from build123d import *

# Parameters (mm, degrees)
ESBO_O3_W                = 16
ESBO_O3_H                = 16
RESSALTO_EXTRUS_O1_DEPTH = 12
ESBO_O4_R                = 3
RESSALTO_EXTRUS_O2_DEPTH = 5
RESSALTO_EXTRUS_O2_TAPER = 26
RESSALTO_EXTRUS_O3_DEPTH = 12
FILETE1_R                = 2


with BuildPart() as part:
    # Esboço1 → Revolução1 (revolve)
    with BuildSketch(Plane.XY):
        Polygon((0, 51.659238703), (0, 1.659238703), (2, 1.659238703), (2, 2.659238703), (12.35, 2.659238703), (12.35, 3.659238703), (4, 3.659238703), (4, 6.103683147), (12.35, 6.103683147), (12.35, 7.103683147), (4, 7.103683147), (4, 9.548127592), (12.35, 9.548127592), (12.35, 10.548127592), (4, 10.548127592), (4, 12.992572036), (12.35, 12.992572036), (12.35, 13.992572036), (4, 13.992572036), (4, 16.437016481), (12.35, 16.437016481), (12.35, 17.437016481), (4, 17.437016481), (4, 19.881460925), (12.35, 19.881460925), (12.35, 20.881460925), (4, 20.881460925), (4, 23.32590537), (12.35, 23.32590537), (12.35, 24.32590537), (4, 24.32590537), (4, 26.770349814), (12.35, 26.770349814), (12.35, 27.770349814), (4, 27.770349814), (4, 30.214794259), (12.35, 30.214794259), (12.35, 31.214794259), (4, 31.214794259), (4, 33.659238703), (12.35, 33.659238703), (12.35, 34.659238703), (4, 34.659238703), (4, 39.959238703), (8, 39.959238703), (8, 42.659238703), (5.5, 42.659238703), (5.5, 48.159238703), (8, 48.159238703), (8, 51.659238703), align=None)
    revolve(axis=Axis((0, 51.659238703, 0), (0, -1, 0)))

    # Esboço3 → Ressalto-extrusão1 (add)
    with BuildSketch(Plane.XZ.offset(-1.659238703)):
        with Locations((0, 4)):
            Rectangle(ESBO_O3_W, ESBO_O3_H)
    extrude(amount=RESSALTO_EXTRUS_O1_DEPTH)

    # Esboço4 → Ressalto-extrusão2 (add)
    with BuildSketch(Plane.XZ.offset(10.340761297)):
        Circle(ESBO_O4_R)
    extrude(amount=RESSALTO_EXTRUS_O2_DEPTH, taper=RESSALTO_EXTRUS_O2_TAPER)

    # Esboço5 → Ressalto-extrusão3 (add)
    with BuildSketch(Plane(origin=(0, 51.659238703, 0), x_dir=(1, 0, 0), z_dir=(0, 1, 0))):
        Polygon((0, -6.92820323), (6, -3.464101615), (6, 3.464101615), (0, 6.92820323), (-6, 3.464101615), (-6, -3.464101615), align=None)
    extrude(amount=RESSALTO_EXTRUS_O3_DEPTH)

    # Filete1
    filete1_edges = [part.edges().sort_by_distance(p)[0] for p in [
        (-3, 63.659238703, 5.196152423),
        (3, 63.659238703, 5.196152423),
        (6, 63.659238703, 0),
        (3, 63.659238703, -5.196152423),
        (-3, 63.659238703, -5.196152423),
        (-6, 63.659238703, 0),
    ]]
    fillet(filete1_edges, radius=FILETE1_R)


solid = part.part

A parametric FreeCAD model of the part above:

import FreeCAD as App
import Part
import Sketcher
Q = App.Units.Quantity


def edges_at(feature, points):
    """Names of the edges that pass closest to the given points."""
    edges = feature.Shape.Edges
    near = lambda p: min(range(len(edges)), key=lambda i: edges[i].distToShape(Part.Vertex(*p))[0])
    return sorted({f"Edge{near(p) + 1}" for p in points})


def add_polygon(sketch, points):
    """Adds a closed chain of lines whose ends are joined by coincident constraints."""
    first, n = sketch.GeometryCount, len(points)
    for a, b in zip(points, points[1:] + points[:1]):
        sketch.addGeometry(Part.LineSegment(App.Vector(*a, 0), App.Vector(*b, 0)), False)
    for i in range(n):
        sketch.addConstraint(Sketcher.Constraint("Coincident", first + i, 2, first + (i + 1) % n, 1))

doc = App.newDocument("Part")
params = doc.addObject("Spreadsheet::Sheet", "Params")
for row, (alias, value) in enumerate([
    ("sketch1_width", "2 mm"),
    ("sketch1_width2", "4 mm"),
    ("sketch1_width3", "8 mm"),
    ("sketch1_height", "50 mm"),
    ("sketch1_height2", "1 mm"),
    ("revolution_angle", "360 deg"),
    ("sketch2_width", "16 mm"),
    ("pad1_length", "12 mm"),
    ("sketch3_diameter", "6 mm"),
    ("pad2_length", "5 mm"),
    ("pad2_taper", "-26 deg"),
    ("pad3_length", "12 mm"),
    ("fillet_radius", "2 mm"),
], start=1):
    params.set(f"A{row}", alias)
    params.set(f"B{row}", "=" + value)
    params.setAlias(f"B{row}", alias)

body = doc.addObject("PartDesign::Body", "Body")

# Sketch on XY plane
sketch1 = doc.addObject("Sketcher::SketchObject", "Sketch")
body.addObject(sketch1)
sketch1.AttachmentSupport = (doc.XY_Plane, [""])
sketch1.MapMode = "FlatFace"
add_polygon(sketch1, [(0, 51.7), (0, 1.7), (2, 1.7), (2, 2.7), (12.3, 2.7), (12.3, 3.7), (4, 3.7), (4, 6.1), (12.3, 6.1), (12.3, 7.1), (4, 7.1), (4, 9.5), (12.3, 9.5), (12.3, 10.5), (4, 10.5), (4, 13), (12.3, 13), (12.3, 14), (4, 14), (4, 16.4), (12.3, 16.4), (12.3, 17.4), (4, 17.4), (4, 19.9), (12.3, 19.9), (12.3, 20.9), (4, 20.9), (4, 23.3), (12.3, 23.3), (12.3, 24.3), (4, 24.3), (4, 26.8), (12.3, 26.8), (12.3, 27.8), (4, 27.8), (4, 30.2), (12.3, 30.2), (12.3, 31.2), (4, 31.2), (4, 33.7), (12.3, 33.7), (12.3, 34.7), (4, 34.7), (4, 40), (8, 40), (8, 42.7), (5.5, 42.7), (5.5, 48.2), (8, 48.2), (8, 51.7)])  # lines 0-49
sketch1.addConstraint(Sketcher.Constraint("Vertical", 0))
sketch1.addConstraint(Sketcher.Constraint("Horizontal", 1))
sketch1.addConstraint(Sketcher.Constraint("Vertical", 2))
sketch1.addConstraint(Sketcher.Constraint("Horizontal", 3))
sketch1.addConstraint(Sketcher.Constraint("Vertical", 4))
sketch1.addConstraint(Sketcher.Constraint("Horizontal", 5))
sketch1.addConstraint(Sketcher.Constraint("Vertical", 6))
sketch1.addConstraint(Sketcher.Constraint("Horizontal", 7))
sketch1.addConstraint(Sketcher.Constraint("Vertical", 8))
sketch1.addConstraint(Sketcher.Constraint("Horizontal", 9))
sketch1.addConstraint(Sketcher.Constraint("Vertical", 10))
sketch1.addConstraint(Sketcher.Constraint("Horizontal", 11))
sketch1.addConstraint(Sketcher.Constraint("Vertical", 12))
sketch1.addConstraint(Sketcher.Constraint("Horizontal", 13))
sketch1.addConstraint(Sketcher.Constraint("Vertical", 14))
sketch1.addConstraint(Sketcher.Constraint("Horizontal", 15))
sketch1.addConstraint(Sketcher.Constraint("Vertical", 16))
sketch1.addConstraint(Sketcher.Constraint("Horizontal", 17))
sketch1.addConstraint(Sketcher.Constraint("Vertical", 18))
sketch1.addConstraint(Sketcher.Constraint("Horizontal", 19))
sketch1.addConstraint(Sketcher.Constraint("Vertical", 20))
sketch1.addConstraint(Sketcher.Constraint("Horizontal", 21))
sketch1.addConstraint(Sketcher.Constraint("Vertical", 22))
sketch1.addConstraint(Sketcher.Constraint("Horizontal", 23))
sketch1.addConstraint(Sketcher.Constraint("Vertical", 24))
sketch1.addConstraint(Sketcher.Constraint("Horizontal", 25))
sketch1.addConstraint(Sketcher.Constraint("Vertical", 26))
sketch1.addConstraint(Sketcher.Constraint("Horizontal", 27))
sketch1.addConstraint(Sketcher.Constraint("Vertical", 28))
sketch1.addConstraint(Sketcher.Constraint("Horizontal", 29))
sketch1.addConstraint(Sketcher.Constraint("Vertical", 30))
sketch1.addConstraint(Sketcher.Constraint("Horizontal", 31))
sketch1.addConstraint(Sketcher.Constraint("Vertical", 32))
sketch1.addConstraint(Sketcher.Constraint("Horizontal", 33))
sketch1.addConstraint(Sketcher.Constraint("Vertical", 34))
sketch1.addConstraint(Sketcher.Constraint("Horizontal", 35))
sketch1.addConstraint(Sketcher.Constraint("Vertical", 36))
sketch1.addConstraint(Sketcher.Constraint("Horizontal", 37))
sketch1.addConstraint(Sketcher.Constraint("Vertical", 38))
sketch1.addConstraint(Sketcher.Constraint("Horizontal", 39))
sketch1.addConstraint(Sketcher.Constraint("Vertical", 40))
sketch1.addConstraint(Sketcher.Constraint("Horizontal", 41))
sketch1.addConstraint(Sketcher.Constraint("Vertical", 42))
sketch1.addConstraint(Sketcher.Constraint("Horizontal", 43))
sketch1.addConstraint(Sketcher.Constraint("Vertical", 44))
sketch1.addConstraint(Sketcher.Constraint("Horizontal", 45))
sketch1.addConstraint(Sketcher.Constraint("Vertical", 46))
sketch1.addConstraint(Sketcher.Constraint("Horizontal", 47))
sketch1.addConstraint(Sketcher.Constraint("Vertical", 48))
sketch1.addConstraint(Sketcher.Constraint("Horizontal", 49))
sketch1.addConstraint(Sketcher.Constraint("PointOnObject", 0, 2, -2))
sketch1.addConstraint(Sketcher.Constraint("Vertical", 4, 2, 7, 2))
sketch1.addConstraint(Sketcher.Constraint("Vertical", 6, 2, 9, 2))
sketch1.addConstraint(Sketcher.Constraint("Vertical", 8, 2, 11, 2))
sketch1.addConstraint(Sketcher.Constraint("Vertical", 10, 2, 13, 2))
sketch1.addConstraint(Sketcher.Constraint("Vertical", 12, 2, 15, 2))
sketch1.addConstraint(Sketcher.Constraint("Vertical", 14, 2, 17, 2))
sketch1.addConstraint(Sketcher.Constraint("Vertical", 16, 2, 19, 2))
sketch1.addConstraint(Sketcher.Constraint("Vertical", 18, 2, 21, 2))
sketch1.addConstraint(Sketcher.Constraint("Vertical", 20, 2, 23, 2))
sketch1.addConstraint(Sketcher.Constraint("Vertical", 22, 2, 25, 2))
sketch1.addConstraint(Sketcher.Constraint("Vertical", 24, 2, 27, 2))
sketch1.addConstraint(Sketcher.Constraint("Vertical", 26, 2, 29, 2))
sketch1.addConstraint(Sketcher.Constraint("Vertical", 28, 2, 31, 2))
sketch1.addConstraint(Sketcher.Constraint("Vertical", 30, 2, 33, 2))
sketch1.addConstraint(Sketcher.Constraint("Vertical", 32, 2, 35, 2))
sketch1.addConstraint(Sketcher.Constraint("Vertical", 34, 2, 37, 2))
sketch1.addConstraint(Sketcher.Constraint("Vertical", 36, 2, 39, 2))
sketch1.addConstraint(Sketcher.Constraint("Vertical", 38, 2, 41, 2))
sketch1.addConstraint(Sketcher.Constraint("Vertical", 44, 2, 47, 2))
sketch1.addConstraint(Sketcher.Constraint("Equal", 2, 4))
sketch1.addConstraint(Sketcher.Constraint("Equal", 4, 8))
sketch1.addConstraint(Sketcher.Constraint("Equal", 6, 10))
sketch1.addConstraint(Sketcher.Constraint("Equal", 8, 12))
sketch1.addConstraint(Sketcher.Constraint("Equal", 10, 14))
sketch1.addConstraint(Sketcher.Constraint("Equal", 12, 16))
sketch1.addConstraint(Sketcher.Constraint("Equal", 14, 18))
sketch1.addConstraint(Sketcher.Constraint("Equal", 16, 20))
sketch1.addConstraint(Sketcher.Constraint("Equal", 18, 22))
sketch1.addConstraint(Sketcher.Constraint("Equal", 20, 24))
sketch1.addConstraint(Sketcher.Constraint("Equal", 22, 26))
sketch1.addConstraint(Sketcher.Constraint("Equal", 24, 28))
sketch1.addConstraint(Sketcher.Constraint("Equal", 26, 30))
sketch1.addConstraint(Sketcher.Constraint("Equal", 28, 32))
sketch1.addConstraint(Sketcher.Constraint("Equal", 30, 34))
sketch1.addConstraint(Sketcher.Constraint("Equal", 32, 36))
sketch1.addConstraint(Sketcher.Constraint("Equal", 34, 38))
sketch1.addConstraint(Sketcher.Constraint("Equal", 36, 40))
sketch1.addConstraint(Sketcher.Constraint("DistanceX", 1, 1, 1, 2, Q("2 mm")))
sketch1.addConstraint(Sketcher.Constraint("DistanceX", 43, 1, 43, 2, Q("4 mm")))
sketch1.addConstraint(Sketcher.Constraint("DistanceX", 49, 2, 49, 1, Q("8 mm")))
sketch1.addConstraint(Sketcher.Constraint("DistanceY", 0, 2, 0, 1, Q("50 mm")))
sketch1.addConstraint(Sketcher.Constraint("DistanceY", 2, 1, 2, 2, Q("1 mm")))
sketch1.addConstraint(Sketcher.Constraint("DistanceX", 45, 2, 45, 1, Q("2.5 mm")))
sketch1.addConstraint(Sketcher.Constraint("DistanceY", 42, 1, 42, 2, Q("5.3 mm")))
sketch1.addConstraint(Sketcher.Constraint("DistanceY", 44, 1, 44, 2, Q("2.7 mm")))
sketch1.addConstraint(Sketcher.Constraint("DistanceY", 46, 1, 46, 2, Q("5.5 mm")))
sketch1.addConstraint(Sketcher.Constraint("DistanceY", 48, 1, 48, 2, Q("3.5 mm")))
sketch1.addConstraint(Sketcher.Constraint("DistanceX", 3, 1, 3, 2, Q("10.35 mm")))
sketch1.addConstraint(Sketcher.Constraint("DistanceY", -1, 1, 0, 2, Q("1.659239 mm")))
sketch1.setExpression("Constraints[138]", "Params.sketch1_width")
sketch1.setExpression("Constraints[139]", "Params.sketch1_width2")
sketch1.setExpression("Constraints[140]", "Params.sketch1_width3")
sketch1.setExpression("Constraints[141]", "Params.sketch1_height")
sketch1.setExpression("Constraints[142]", "Params.sketch1_height2")
revolution = doc.addObject("PartDesign::Revolution", "Revolution")
body.addObject(revolution)
revolution.Profile = sketch1
revolution.ReferenceAxis = (sketch1, ["V_Axis"])
revolution.setExpression("Angle", "Params.revolution_angle")

# Sketch on XZ plane
sketch2 = doc.addObject("Sketcher::SketchObject", "Sketch001")
body.addObject(sketch2)
sketch2.AttachmentSupport = (doc.XZ_Plane, [""])
sketch2.MapMode = "FlatFace"
sketch2.AttachmentOffset = App.Placement(App.Vector(0, 0, -1.659239), App.Rotation())
add_polygon(sketch2, [(-8, 12), (-8, -4), (8, -4), (8, 12)])  # lines 0-3
sketch2.addConstraint(Sketcher.Constraint("Vertical", 0))
sketch2.addConstraint(Sketcher.Constraint("Horizontal", 1))
sketch2.addConstraint(Sketcher.Constraint("Vertical", 2))
sketch2.addConstraint(Sketcher.Constraint("Horizontal", 3))
sketch2.addConstraint(Sketcher.Constraint("Equal", 3, 0))
sketch2.addConstraint(Sketcher.Constraint("DistanceX", 1, 1, 1, 2, Q("16 mm")))
sketch2.addConstraint(Sketcher.Constraint("DistanceX", 0, 2, -1, 1, Q("8 mm")))
sketch2.addConstraint(Sketcher.Constraint("DistanceY", 0, 2, -1, 1, Q("4 mm")))
sketch2.setExpression("Constraints[9]", "Params.sketch2_width")
pad1 = doc.addObject("PartDesign::Pad", "Pad")
body.addObject(pad1)
pad1.Profile = sketch2
pad1.setExpression("Length", "Params.pad1_length")

# Sketch on XZ plane
sketch3 = doc.addObject("Sketcher::SketchObject", "Sketch002")
body.addObject(sketch3)
sketch3.AttachmentSupport = (doc.XZ_Plane, [""])
sketch3.MapMode = "FlatFace"
sketch3.AttachmentOffset = App.Placement(App.Vector(0, 0, 10.340761), App.Rotation())
sketch3.addGeometry(Part.Circle(App.Vector(0, 0, 0), App.Vector(0, 0, 1), 3), False)
sketch3.addConstraint(Sketcher.Constraint("Coincident", 0, 3, -1, 1))
sketch3.addConstraint(Sketcher.Constraint("Diameter", 0, Q("6 mm")))
sketch3.setExpression("Constraints[1]", "Params.sketch3_diameter")
pad2 = doc.addObject("PartDesign::Pad", "Pad001")
body.addObject(pad2)
pad2.Profile = sketch3
pad2.setExpression("Length", "Params.pad2_length")
pad2.setExpression("TaperAngle", "Params.pad2_taper")

# Sketch on XZ plane
sketch4 = doc.addObject("Sketcher::SketchObject", "Sketch003")
body.addObject(sketch4)
sketch4.AttachmentSupport = (doc.XZ_Plane, [""])
sketch4.MapMode = "FlatFace"
sketch4.AttachmentOffset = App.Placement(App.Vector(0, 0, -51.659239), App.Rotation())
add_polygon(sketch4, [(0, 7), (6, 3), (6, -3), (0, -7), (-6, -3), (-6, 3)])  # lines 0-5
sketch4.addConstraint(Sketcher.Constraint("Vertical", 1))
sketch4.addConstraint(Sketcher.Constraint("Vertical", 4))
sketch4.addConstraint(Sketcher.Constraint("Symmetric", 0, 2, 3, 2, -1, 1))
sketch4.addConstraint(Sketcher.Constraint("Symmetric", 2, 2, 5, 2, -1, 1))
sketch4.addConstraint(Sketcher.Constraint("PointOnObject", 2, 2, -2))
sketch4.addConstraint(Sketcher.Constraint("Parallel", 2, 5))
sketch4.addConstraint(Sketcher.Constraint("Horizontal", 1, 2, 3, 2))
sketch4.addConstraint(Sketcher.Constraint("Angle", 0, Q("-30 deg")))
sketch4.addConstraint(Sketcher.Constraint("DistanceX", -1, 1, 0, 2, Q("6 mm")))
sketch4.addConstraint(Sketcher.Constraint("DistanceY", -1, 1, 0, 2, Q("3.464102 mm")))
pad3 = doc.addObject("PartDesign::Pad", "Pad002")
body.addObject(pad3)
pad3.Profile = sketch4
pad3.setExpression("Length", "Params.pad3_length")
pad3.Reversed = True
doc.recompute()

fillet = doc.addObject("PartDesign::Fillet", "Fillet")
body.addObject(fillet)
fillet.Base = (pad3, edges_at(pad3, [
    (-3, 63.659, 5.196),
    (3, 63.659, 5.196),
    (6, 63.659, 0),
    (3, 63.659, -5.196),
    (-3, 63.659, -5.196),
    (-6, 63.659, 0),
]))
fillet.setExpression("Radius", "Params.fillet_radius")

doc.recompute()
